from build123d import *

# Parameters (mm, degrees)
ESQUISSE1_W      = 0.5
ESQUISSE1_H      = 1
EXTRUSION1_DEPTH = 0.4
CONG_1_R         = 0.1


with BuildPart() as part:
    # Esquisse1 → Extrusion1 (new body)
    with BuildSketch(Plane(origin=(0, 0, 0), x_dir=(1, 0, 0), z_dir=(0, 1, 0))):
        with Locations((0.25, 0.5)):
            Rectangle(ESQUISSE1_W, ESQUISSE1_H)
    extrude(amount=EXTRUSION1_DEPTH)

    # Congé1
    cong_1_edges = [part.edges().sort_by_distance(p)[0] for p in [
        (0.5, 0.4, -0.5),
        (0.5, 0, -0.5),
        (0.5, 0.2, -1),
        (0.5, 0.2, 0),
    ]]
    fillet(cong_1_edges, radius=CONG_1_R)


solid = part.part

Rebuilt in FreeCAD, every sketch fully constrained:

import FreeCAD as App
import Part
import Sketcher
from FreeCAD import Vector
Q = App.Units.Quantity


def edges_at(feature, points):
    """Names of the edges that pass closest to the given points."""
    edges = feature.Shape.Edges
    near = lambda p: min(range(len(edges)), key=lambda i: edges[i].distToShape(Part.Vertex(*p))[0])
    return sorted({f"Edge{near(p) + 1}" for p in points})

doc = App.newDocument("Part")
body = doc.addObject("PartDesign::Body", "Body")

sketch1 = doc.addObject("Sketcher::SketchObject", "Sketch")
body.addObject(sketch1)
sketch1.AttachmentSupport = (doc.XZ_Plane, [""])
sketch1.MapMode = "FlatFace"
sketch1.addGeometry([
    Part.LineSegment(Vector(0, -1, 0), Vector(0, 0, 0)),
    Part.LineSegment(Vector(0, 0, 0), Vector(0.5, 0, 0)),
    Part.LineSegment(Vector(0.5, 0, 0), Vector(0.5, -1, 0)),
    Part.LineSegment(Vector(0.5, -1, 0), Vector(0, -1, 0)),
], False)
sketch1.addConstraint([
    Sketcher.Constraint("Coincident", 0, 2, 1, 1),
    Sketcher.Constraint("Coincident", 1, 2, 2, 1),
    Sketcher.Constraint("Coincident", 2, 2, 3, 1),
    Sketcher.Constraint("Coincident", 3, 2, 0, 1),
    Sketcher.Constraint("Vertical", 0),
    Sketcher.Constraint("Horizontal", 1),
    Sketcher.Constraint("Vertical", 2),
    Sketcher.Constraint("Horizontal", 3),
    Sketcher.Constraint("Coincident", 0, 2, -1, 1),
    Sketcher.Constraint("DistanceY", 0, 1, 0, 2, Q("1 mm")),
    Sketcher.Constraint("DistanceX", 1, 1, 1, 2, Q("0.5 mm")),
])
pad1 = doc.addObject("PartDesign::Pad", "Pad")
body.addObject(pad1)
pad1.Profile = sketch1
pad1.Length = 0.4
pad1.Reversed = True
doc.recompute()

fillet = doc.addObject("PartDesign::Fillet", "Fillet")
body.addObject(fillet)
fillet.Base = (pad1, edges_at(pad1, [
    (0.5, 0.4, -0.5),
    (0.5, 0, -0.5),
    (0.5, 0.2, -1),
    (0.5, 0.2, 0),
]))
fillet.Radius = 0.1

doc.recompute()
